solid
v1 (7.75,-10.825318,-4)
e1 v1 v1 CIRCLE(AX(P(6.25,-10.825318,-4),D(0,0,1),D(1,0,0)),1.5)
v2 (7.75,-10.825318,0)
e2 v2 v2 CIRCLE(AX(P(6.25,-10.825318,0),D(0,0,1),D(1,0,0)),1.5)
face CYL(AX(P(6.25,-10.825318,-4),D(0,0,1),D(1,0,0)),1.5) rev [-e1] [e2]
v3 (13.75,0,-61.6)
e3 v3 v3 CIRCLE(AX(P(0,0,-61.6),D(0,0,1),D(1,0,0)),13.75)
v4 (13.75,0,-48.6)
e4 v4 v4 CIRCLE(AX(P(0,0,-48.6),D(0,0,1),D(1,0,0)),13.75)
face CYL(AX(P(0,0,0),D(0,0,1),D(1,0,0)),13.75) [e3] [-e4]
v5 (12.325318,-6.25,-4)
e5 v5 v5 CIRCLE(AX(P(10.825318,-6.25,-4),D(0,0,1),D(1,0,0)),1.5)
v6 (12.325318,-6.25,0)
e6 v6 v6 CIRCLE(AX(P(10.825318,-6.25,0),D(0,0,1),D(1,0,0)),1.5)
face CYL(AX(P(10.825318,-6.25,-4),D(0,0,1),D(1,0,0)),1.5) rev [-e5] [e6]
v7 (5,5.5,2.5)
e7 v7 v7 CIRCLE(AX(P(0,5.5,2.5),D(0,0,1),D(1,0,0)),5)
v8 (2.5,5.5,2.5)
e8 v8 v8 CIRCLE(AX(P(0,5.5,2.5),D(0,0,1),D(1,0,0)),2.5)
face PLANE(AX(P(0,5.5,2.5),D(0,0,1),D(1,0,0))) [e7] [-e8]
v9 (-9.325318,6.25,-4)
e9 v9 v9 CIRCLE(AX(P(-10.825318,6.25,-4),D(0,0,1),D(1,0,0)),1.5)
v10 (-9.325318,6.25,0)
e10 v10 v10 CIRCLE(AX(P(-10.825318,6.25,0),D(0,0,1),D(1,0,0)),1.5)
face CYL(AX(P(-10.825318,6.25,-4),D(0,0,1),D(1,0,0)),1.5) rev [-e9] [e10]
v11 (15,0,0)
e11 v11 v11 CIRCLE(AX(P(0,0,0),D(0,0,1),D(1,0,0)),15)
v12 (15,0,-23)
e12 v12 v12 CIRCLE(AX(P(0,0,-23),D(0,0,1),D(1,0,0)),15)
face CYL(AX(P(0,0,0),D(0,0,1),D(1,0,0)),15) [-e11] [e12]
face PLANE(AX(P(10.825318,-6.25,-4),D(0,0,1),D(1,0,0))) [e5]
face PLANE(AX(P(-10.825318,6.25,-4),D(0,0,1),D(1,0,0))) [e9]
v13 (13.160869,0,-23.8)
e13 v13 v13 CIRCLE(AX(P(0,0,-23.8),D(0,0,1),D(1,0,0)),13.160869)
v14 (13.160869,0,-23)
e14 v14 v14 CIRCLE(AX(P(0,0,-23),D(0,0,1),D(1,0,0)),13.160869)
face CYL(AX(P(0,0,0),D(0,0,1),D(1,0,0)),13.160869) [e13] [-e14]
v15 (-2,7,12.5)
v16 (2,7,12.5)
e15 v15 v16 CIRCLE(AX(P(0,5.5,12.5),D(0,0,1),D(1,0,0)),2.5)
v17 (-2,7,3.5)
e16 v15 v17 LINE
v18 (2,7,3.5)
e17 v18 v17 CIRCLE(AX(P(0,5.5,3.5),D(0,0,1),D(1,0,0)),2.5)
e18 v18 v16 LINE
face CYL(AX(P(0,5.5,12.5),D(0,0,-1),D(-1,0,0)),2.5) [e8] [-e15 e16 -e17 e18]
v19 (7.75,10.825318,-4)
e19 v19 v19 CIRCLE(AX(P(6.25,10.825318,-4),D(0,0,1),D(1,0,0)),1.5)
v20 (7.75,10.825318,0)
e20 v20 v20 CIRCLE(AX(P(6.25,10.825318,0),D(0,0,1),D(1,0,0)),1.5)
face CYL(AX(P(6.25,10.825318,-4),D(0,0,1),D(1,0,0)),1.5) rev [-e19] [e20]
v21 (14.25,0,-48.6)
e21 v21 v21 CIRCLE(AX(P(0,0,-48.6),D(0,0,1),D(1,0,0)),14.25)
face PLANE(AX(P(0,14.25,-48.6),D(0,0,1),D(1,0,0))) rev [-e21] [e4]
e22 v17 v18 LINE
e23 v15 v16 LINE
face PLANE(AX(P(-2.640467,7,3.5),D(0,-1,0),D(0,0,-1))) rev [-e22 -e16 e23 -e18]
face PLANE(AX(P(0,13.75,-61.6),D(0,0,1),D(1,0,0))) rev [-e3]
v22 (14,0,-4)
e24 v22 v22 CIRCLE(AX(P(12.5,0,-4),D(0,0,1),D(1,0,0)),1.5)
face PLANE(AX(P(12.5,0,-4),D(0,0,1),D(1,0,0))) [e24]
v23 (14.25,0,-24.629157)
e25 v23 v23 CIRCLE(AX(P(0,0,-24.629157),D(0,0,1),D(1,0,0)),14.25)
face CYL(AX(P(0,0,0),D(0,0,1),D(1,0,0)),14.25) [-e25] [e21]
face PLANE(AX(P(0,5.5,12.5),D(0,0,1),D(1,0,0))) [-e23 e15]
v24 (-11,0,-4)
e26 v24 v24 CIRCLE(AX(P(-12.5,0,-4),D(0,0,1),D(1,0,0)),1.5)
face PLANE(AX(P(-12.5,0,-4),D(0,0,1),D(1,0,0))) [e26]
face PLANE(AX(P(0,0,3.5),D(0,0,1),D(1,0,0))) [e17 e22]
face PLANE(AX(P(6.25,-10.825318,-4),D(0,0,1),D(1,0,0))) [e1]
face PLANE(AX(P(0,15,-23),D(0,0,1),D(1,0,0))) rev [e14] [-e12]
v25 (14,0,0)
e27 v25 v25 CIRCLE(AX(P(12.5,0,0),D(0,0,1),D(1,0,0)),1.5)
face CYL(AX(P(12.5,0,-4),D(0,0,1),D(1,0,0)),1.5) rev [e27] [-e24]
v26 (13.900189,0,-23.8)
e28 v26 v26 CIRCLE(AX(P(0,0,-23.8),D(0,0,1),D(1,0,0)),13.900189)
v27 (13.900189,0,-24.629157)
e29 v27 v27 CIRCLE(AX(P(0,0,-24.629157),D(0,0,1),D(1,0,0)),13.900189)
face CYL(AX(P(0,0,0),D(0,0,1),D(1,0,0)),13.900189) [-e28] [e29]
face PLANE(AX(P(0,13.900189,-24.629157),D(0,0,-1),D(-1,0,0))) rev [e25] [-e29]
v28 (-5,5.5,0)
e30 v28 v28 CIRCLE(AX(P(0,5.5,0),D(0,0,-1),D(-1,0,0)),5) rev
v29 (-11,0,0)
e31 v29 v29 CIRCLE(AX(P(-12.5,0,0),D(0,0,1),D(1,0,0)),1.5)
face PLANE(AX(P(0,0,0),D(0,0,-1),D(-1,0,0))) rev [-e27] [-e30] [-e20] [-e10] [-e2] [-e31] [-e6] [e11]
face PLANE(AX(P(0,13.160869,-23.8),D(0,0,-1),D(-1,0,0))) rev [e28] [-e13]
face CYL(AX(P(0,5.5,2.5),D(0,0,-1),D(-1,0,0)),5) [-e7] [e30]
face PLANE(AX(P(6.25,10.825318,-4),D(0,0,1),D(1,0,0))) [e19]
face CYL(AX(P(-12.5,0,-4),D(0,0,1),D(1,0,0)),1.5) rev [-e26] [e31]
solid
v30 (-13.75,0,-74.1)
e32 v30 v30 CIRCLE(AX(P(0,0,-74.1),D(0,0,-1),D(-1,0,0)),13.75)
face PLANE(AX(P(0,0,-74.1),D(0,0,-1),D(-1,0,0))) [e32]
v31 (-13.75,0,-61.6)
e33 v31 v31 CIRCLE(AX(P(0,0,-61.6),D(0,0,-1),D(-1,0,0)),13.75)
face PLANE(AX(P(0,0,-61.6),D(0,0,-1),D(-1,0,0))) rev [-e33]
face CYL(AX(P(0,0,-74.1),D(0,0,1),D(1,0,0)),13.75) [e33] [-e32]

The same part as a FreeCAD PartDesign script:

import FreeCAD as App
import Part
import Sketcher
from FreeCAD import Vector


def add_polygon(sketch, points):
    """Adds a closed chain of lines whose ends are joined by coincident constraints."""
    first, n = sketch.GeometryCount, len(points)
    for a, b in zip(points, points[1:] + points[:1]):
        sketch.addGeometry(Part.LineSegment(App.Vector(*a, 0), App.Vector(*b, 0)), False)
    for i in range(n):
        sketch.addConstraint(Sketcher.Constraint("Coincident", first + i, 2, first + (i + 1) % n, 1))

doc = App.newDocument("Part")
body = doc.addObject("PartDesign::Body", "Body")

sketch1 = body.newObject("Sketcher::SketchObject", "Sketch")
sketch1.AttachmentSupport = (doc.getObject("YZ_Plane"), [""])
sketch1.MapMode = "FlatFace"
add_polygon(sketch1, [(15, 0), (0, 0), (0, -61.6), (13.75, -61.6), (13.75, -48.6), (14.25, -48.6), (14.25, -24.63), (13.9, -24.63), (13.9, -23.8), (13.16, -23.8), (13.16, -23), (15, -23)])
sketch1.addConstraint([
    Sketcher.Constraint("Horizontal", 0),
    Sketcher.Constraint("Vertical", 1),
    Sketcher.Constraint("Horizontal", 2),
    Sketcher.Constraint("Vertical", 3),
    Sketcher.Constraint("Horizontal", 4),
    Sketcher.Constraint("Vertical", 5),
    Sketcher.Constraint("Horizontal", 6),
    Sketcher.Constraint("Vertical", 7),
    Sketcher.Constraint("Horizontal", 8),
    Sketcher.Constraint("Vertical", 9),
    Sketcher.Constraint("Horizontal", 10),
    Sketcher.Constraint("Vertical", 11),
    Sketcher.Constraint("Coincident", 0, 2, -1, 1),
    Sketcher.Constraint("DistanceX", 0, 2, 0, 1, 15.0),
    Sketcher.Constraint("DistanceY", 3, 1, 3, 2, 13.0),
    Sketcher.Constraint("DistanceY", 11, 1, 11, 2, 23.0),
    Sketcher.Constraint("DistanceX", 4, 1, 4, 2, 0.5),
    Sketcher.Constraint("DistanceY", 1, 2, 1, 1, 61.6),
    Sketcher.Constraint("DistanceY", 9, 1, 9, 2, 0.8),
    Sketcher.Constraint("DistanceX", 2, 1, 2, 2, 13.75),
    Sketcher.Constraint("DistanceX", 6, 2, 6, 1, 0.349811),
    Sketcher.Constraint("DistanceX", 8, 2, 8, 1, 0.739319),
    Sketcher.Constraint("DistanceY", 5, 1, 5, 2, 23.970843),
])
revolution = body.newObject("PartDesign::Revolution", "Revolution")
revolution.Profile = sketch1
revolution.ReferenceAxis = (sketch1, ["V_Axis"])
revolution.Angle = 360

sketch2 = body.newObject("Sketcher::SketchObject", "Sketch001")
sketch2.AttachmentSupport = (doc.getObject("XY_Plane"), [""])
sketch2.MapMode = "FlatFace"
sketch2.addGeometry([
    Part.Circle(Vector(-12.5, 0, 0), Vector(0, 0, 1), 1.5),
    Part.Circle(Vector(-10.8, 6.2, 0), Vector(0, 0, 1), 1.5),
    Part.Circle(Vector(6.2, 10.8, 0), Vector(0, 0, 1), 1.5),
    Part.Circle(Vector(12.5, 0, 0), Vector(0, 0, 1), 1.5),
    Part.Circle(Vector(10.8, -6.2, 0), Vector(0, 0, 1), 1.5),
    Part.Circle(Vector(6.2, -10.8, 0), Vector(0, 0, 1), 1.5),
], False)
sketch2.addConstraint([
    Sketcher.Constraint("Equal", 0, 1),
    Sketcher.Constraint("Equal", 1, 2),
    Sketcher.Constraint("Equal", 2, 3),
    Sketcher.Constraint("Equal", 3, 4),
    Sketcher.Constraint("Equal", 4, 5),
    Sketcher.Constraint("Symmetric", 0, 3, 3, 3, -1, 1),
    Sketcher.Constraint("Symmetric", 1, 3, 4, 3, -1, 1),
    Sketcher.Constraint("Symmetric", 2, 3, 5, 3, -1),
    Sketcher.Constraint("PointOnObject", 0, 3, -1),
    Sketcher.Constraint("Diameter", 0, 3.0),
    Sketcher.Constraint("DistanceX", 0, 3, 3, 3, 25.0),
    Sketcher.Constraint("DistanceY", 4, 3, 1, 3, 12.5),
    Sketcher.Constraint("DistanceX", -1, 1, 2, 3, 6.25),
    Sketcher.Constraint("DistanceX", 1, 3, -1, 1, 10.825318),
    Sketcher.Constraint("DistanceY", -1, 1, 2, 3, 10.825318),
])
pocket1 = body.newObject("PartDesign::Pocket", "Pocket")
pocket1.Profile = sketch2
pocket1.Length = 4

sketch3 = body.newObject("Sketcher::SketchObject", "Sketch002")
sketch3.AttachmentSupport = (doc.getObject("XY_Plane"), [""])
sketch3.MapMode = "FlatFace"
sketch3.addGeometry(Part.Circle(Vector(0, 6, 0), Vector(0, 0, 1), 5), False)
sketch3.addConstraint([
    Sketcher.Constraint("PointOnObject", 0, 3, -2),
    Sketcher.Constraint("Diameter", 0, 10.0),
    Sketcher.Constraint("DistanceY", -1, 1, 0, 3, 5.5),
])
pad1 = body.newObject("PartDesign::Pad", "Pad")
pad1.Profile = sketch3
pad1.Length = 2.5

sketch4 = body.newObject("Sketcher::SketchObject", "Sketch003")
sketch4.AttachmentSupport = (doc.getObject("XY_Plane"), [""])
sketch4.MapMode = "FlatFace"
sketch4.AttachmentOffset = App.Placement(Vector(0, 0, 2.5), App.Rotation())
sketch4.addGeometry(Part.Circle(Vector(0, 5.5, 0), Vector(0, 0, 1), 2.5), False)
sketch4.addConstraint([
    Sketcher.Constraint("PointOnObject", 0, 3, -2),
    Sketcher.Constraint("Diameter", 0, 5.0),
    Sketcher.Constraint("DistanceY", -1, 1, 0, 3, 5.5),
])
pad2 = body.newObject("PartDesign::Pad", "Pad001")
pad2.Profile = sketch4
pad2.Length = 10

sketch5 = body.newObject("Sketcher::SketchObject", "Sketch004")
sketch5.AttachmentSupport = (doc.getObject("XY_Plane"), [""])
sketch5.MapMode = "FlatFace"
sketch5.AttachmentOffset = App.Placement(Vector(0, 0, 12.5), App.Rotation())
add_polygon(sketch5, [(-2.6, 7), (2.8, 7), (2.8, 8.8), (-1.5, 8.8)])
sketch5.addConstraint([
    Sketcher.Constraint("Horizontal", 0),
    Sketcher.Constraint("Vertical", 1),
    Sketcher.Constraint("Horizontal", 2),
    Sketcher.Constraint("DistanceY", -1, 1, 0, 2, 7.0),
    Sketcher.Constraint("DistanceX", 2, 2, 2, 1, 4.34183),
    Sketcher.Constraint("DistanceX", 0, 1, 0, 2, 5.468717),
    Sketcher.Constraint("DistanceY", 1, 1, 1, 2, 1.822906),
    Sketcher.Constraint("DistanceX", -1, 1, 0, 2, 2.82825),
])
pocket2 = body.newObject("PartDesign::Pocket", "Pocket001")
pocket2.Profile = sketch5
pocket2.Length = 9
body2 = doc.addObject("PartDesign::Body", "Body001")

sketch6 = body2.newObject("Sketcher::SketchObject", "Sketch005")
sketch6.AttachmentSupport = (doc.getObject("XY_Plane001"), [""])
sketch6.MapMode = "FlatFace"
sketch6.AttachmentOffset = App.Placement(Vector(0, 0, -61.6), App.Rotation())
sketch6.addGeometry(Part.Circle(Vector(0, 0, 0), Vector(0, 0, 1), 14), False)
sketch6.addConstraint([
    Sketcher.Constraint("Coincident", 0, 3, -1, 1),
    Sketcher.Constraint("Diameter", 0, 27.5),
])
pad3 = body2.newObject("PartDesign::Pad", "Pad002")
pad3.Profile = sketch6
pad3.Length = 12.5
pad3.Reversed = True

doc.recompute()
